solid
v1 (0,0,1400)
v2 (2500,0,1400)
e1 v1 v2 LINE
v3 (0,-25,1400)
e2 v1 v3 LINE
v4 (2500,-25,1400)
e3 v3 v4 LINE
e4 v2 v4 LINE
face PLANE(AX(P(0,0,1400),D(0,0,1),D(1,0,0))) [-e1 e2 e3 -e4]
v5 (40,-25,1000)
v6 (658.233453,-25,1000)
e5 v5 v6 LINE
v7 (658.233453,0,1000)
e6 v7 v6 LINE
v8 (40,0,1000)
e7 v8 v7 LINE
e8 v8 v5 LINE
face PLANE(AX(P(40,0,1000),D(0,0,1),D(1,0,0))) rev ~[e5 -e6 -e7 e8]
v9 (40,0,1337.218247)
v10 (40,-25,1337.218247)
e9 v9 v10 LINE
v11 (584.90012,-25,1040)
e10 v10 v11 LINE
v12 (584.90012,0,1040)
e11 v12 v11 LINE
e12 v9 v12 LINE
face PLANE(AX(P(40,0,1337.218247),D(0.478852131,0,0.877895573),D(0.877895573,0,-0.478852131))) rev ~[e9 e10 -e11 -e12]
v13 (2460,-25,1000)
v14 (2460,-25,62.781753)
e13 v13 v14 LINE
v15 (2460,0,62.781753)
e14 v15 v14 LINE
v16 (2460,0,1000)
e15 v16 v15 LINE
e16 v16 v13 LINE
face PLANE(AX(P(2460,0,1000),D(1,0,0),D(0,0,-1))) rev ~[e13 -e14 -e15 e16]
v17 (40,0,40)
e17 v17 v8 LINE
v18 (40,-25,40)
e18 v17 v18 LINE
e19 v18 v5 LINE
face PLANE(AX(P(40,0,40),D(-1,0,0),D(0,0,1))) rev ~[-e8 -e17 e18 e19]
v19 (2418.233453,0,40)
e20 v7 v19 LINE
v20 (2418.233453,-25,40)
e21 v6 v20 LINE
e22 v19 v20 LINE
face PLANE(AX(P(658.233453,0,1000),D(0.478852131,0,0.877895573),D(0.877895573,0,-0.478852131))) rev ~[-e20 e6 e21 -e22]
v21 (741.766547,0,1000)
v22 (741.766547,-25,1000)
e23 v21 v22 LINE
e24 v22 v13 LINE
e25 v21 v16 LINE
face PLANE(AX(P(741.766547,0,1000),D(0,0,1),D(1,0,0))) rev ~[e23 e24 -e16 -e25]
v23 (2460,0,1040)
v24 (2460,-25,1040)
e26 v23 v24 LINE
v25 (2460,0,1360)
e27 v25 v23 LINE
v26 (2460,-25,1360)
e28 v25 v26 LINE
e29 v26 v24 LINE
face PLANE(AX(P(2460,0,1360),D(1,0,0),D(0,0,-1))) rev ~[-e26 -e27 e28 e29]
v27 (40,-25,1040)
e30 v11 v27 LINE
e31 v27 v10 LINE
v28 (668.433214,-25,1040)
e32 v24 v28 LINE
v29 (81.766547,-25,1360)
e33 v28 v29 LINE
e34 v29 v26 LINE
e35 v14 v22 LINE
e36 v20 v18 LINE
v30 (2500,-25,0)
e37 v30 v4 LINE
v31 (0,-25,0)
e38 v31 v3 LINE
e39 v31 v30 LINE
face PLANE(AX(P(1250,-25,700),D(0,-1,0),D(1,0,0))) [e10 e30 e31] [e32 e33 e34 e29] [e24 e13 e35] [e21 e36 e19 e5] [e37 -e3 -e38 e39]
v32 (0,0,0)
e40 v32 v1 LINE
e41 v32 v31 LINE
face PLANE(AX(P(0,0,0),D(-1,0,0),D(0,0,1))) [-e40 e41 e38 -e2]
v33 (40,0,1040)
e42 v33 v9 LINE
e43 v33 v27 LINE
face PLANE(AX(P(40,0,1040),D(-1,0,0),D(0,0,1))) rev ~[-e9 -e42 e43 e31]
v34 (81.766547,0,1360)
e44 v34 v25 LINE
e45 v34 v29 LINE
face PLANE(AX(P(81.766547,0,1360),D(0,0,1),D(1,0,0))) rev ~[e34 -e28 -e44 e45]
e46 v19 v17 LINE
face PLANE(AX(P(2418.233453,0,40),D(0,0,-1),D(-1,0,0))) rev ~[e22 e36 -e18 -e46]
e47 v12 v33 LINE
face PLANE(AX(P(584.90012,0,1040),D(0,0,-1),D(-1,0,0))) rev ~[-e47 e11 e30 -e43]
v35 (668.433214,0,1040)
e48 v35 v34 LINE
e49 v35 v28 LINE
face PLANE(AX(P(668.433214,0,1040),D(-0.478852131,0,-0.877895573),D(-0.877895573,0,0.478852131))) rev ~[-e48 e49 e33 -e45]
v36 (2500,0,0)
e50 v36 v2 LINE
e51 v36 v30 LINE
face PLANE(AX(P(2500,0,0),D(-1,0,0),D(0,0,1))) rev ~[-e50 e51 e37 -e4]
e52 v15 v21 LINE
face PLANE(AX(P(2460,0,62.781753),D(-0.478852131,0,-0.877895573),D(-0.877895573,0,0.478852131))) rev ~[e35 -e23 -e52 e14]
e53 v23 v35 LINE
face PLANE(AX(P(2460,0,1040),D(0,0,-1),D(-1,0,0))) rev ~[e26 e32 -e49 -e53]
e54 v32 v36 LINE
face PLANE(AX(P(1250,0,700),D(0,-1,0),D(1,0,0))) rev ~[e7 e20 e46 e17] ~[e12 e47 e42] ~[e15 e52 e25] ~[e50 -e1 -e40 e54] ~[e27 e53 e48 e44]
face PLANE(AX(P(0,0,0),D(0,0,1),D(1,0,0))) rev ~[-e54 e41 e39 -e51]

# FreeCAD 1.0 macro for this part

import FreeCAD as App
import Part
import Sketcher
from FreeCAD import Vector
Q = App.Units.Quantity


def add_polygon(sketch, points):
    """Adds a closed chain of lines whose ends are joined by coincident constraints."""
    first, n = sketch.GeometryCount, len(points)
    for a, b in zip(points, points[1:] + points[:1]):
        sketch.addGeometry(Part.LineSegment(App.Vector(*a, 0), App.Vector(*b, 0)), False)
    for i in range(n):
        sketch.addConstraint(Sketcher.Constraint("Coincident", first + i, 2, first + (i + 1) % n, 1))

doc = App.newDocument("Part")
body = doc.addObject("PartDesign::Body", "Body")

# Sketch on XZ plane
sketch1 = doc.addObject("Sketcher::SketchObject", "Sketch")
body.addObject(sketch1)
sketch1.AttachmentSupport = (doc.XZ_Plane, [""])
sketch1.MapMode = "FlatFace"
add_polygon(sketch1, [(0, 1400), (0, 0), (2500, 0), (2500, 1400)])  # lines 0-3
add_polygon(sketch1, [(40, 1000), (658, 1000), (2418, 40), (40, 40)])  # lines 4-7
add_polygon(sketch1, [(2460, 63), (742, 1000), (2460, 1000)])  # lines 8-10
add_polygon(sketch1, [(40, 1337), (585, 1040), (40, 1040)])  # lines 11-13
add_polygon(sketch1, [(2460, 1040), (668, 1040), (82, 1360), (2460, 1360)])  # lines 14-17
sketch1.addConstraint(Sketcher.Constraint("Vertical", 0))
sketch1.addConstraint(Sketcher.Constraint("Horizontal", 1))
sketch1.addConstraint(Sketcher.Constraint("Vertical", 2))
sketch1.addConstraint(Sketcher.Constraint("Horizontal", 3))
sketch1.addConstraint(Sketcher.Constraint("Horizontal", 4))
sketch1.addConstraint(Sketcher.Constraint("Horizontal", 6))
sketch1.addConstraint(Sketcher.Constraint("Vertical", 7))
sketch1.addConstraint(Sketcher.Constraint("Horizontal", 9))
sketch1.addConstraint(Sketcher.Constraint("Vertical", 10))
sketch1.addConstraint(Sketcher.Constraint("Horizontal", 12))
sketch1.addConstraint(Sketcher.Constraint("Vertical", 13))
sketch1.addConstraint(Sketcher.Constraint("Horizontal", 14))
sketch1.addConstraint(Sketcher.Constraint("Horizontal", 16))
sketch1.addConstraint(Sketcher.Constraint("Vertical", 17))
sketch1.addConstraint(Sketcher.Constraint("Coincident", 0, 2, -1, 1))
sketch1.addConstraint(Sketcher.Constraint("Parallel", 5, 8))
sketch1.addConstraint(Sketcher.Constraint("Parallel", 8, 11))
sketch1.addConstraint(Sketcher.Constraint("Parallel", 11, 15))
sketch1.addConstraint(Sketcher.Constraint("Horizontal", 7, 2, 8, 2))
sketch1.addConstraint(Sketcher.Constraint("Horizontal", 12, 2, 14, 2))
sketch1.addConstraint(Sketcher.Constraint("Vertical", 7, 2, 12, 2))
sketch1.addConstraint(Sketcher.Constraint("Vertical", 10, 2, 16, 2))
sketch1.addConstraint(Sketcher.Constraint("Equal", 6, 16))
sketch1.addConstraint(Sketcher.Constraint("DistanceX", 1, 1, 1, 2, Q("2500 mm")))
sketch1.addConstraint(Sketcher.Constraint("DistanceY", 0, 2, 0, 1, Q("1400 mm")))
sketch1.addConstraint(Sketcher.Constraint("DistanceY", 7, 1, 7, 2, Q("960 mm")))
sketch1.addConstraint(Sketcher.Constraint("DistanceY", 17, 2, 17, 1, Q("320 mm")))
sketch1.addConstraint(Sketcher.Constraint("DistanceY", -1, 1, 4, 2, Q("1000 mm")))
sketch1.addConstraint(Sketcher.Constraint("DistanceX", -1, 1, 6, 2, Q("40 mm")))
sketch1.addConstraint(Sketcher.Constraint("DistanceX", -1, 1, 9, 2, Q("2460 mm")))
sketch1.addConstraint(Sketcher.Constraint("DistanceY", -1, 1, 11, 2, Q("1040 mm")))
sketch1.addConstraint(Sketcher.Constraint("DistanceX", 4, 2, 5, 2, Q("1760 mm")))
sketch1.addConstraint(Sketcher.Constraint("DistanceX", 12, 2, 12, 1, Q("544.90012 mm")))
sketch1.addConstraint(Sketcher.Constraint("DistanceX", 4, 1, 4, 2, Q("618.233453 mm")))
sketch1.addConstraint(Sketcher.Constraint("DistanceX", 9, 1, 9, 2, Q("1718.233453 mm")))
pad1 = doc.addObject("PartDesign::Pad", "Pad")
body.addObject(pad1)
pad1.Profile = sketch1
pad1.Length = 25

doc.recompute()
